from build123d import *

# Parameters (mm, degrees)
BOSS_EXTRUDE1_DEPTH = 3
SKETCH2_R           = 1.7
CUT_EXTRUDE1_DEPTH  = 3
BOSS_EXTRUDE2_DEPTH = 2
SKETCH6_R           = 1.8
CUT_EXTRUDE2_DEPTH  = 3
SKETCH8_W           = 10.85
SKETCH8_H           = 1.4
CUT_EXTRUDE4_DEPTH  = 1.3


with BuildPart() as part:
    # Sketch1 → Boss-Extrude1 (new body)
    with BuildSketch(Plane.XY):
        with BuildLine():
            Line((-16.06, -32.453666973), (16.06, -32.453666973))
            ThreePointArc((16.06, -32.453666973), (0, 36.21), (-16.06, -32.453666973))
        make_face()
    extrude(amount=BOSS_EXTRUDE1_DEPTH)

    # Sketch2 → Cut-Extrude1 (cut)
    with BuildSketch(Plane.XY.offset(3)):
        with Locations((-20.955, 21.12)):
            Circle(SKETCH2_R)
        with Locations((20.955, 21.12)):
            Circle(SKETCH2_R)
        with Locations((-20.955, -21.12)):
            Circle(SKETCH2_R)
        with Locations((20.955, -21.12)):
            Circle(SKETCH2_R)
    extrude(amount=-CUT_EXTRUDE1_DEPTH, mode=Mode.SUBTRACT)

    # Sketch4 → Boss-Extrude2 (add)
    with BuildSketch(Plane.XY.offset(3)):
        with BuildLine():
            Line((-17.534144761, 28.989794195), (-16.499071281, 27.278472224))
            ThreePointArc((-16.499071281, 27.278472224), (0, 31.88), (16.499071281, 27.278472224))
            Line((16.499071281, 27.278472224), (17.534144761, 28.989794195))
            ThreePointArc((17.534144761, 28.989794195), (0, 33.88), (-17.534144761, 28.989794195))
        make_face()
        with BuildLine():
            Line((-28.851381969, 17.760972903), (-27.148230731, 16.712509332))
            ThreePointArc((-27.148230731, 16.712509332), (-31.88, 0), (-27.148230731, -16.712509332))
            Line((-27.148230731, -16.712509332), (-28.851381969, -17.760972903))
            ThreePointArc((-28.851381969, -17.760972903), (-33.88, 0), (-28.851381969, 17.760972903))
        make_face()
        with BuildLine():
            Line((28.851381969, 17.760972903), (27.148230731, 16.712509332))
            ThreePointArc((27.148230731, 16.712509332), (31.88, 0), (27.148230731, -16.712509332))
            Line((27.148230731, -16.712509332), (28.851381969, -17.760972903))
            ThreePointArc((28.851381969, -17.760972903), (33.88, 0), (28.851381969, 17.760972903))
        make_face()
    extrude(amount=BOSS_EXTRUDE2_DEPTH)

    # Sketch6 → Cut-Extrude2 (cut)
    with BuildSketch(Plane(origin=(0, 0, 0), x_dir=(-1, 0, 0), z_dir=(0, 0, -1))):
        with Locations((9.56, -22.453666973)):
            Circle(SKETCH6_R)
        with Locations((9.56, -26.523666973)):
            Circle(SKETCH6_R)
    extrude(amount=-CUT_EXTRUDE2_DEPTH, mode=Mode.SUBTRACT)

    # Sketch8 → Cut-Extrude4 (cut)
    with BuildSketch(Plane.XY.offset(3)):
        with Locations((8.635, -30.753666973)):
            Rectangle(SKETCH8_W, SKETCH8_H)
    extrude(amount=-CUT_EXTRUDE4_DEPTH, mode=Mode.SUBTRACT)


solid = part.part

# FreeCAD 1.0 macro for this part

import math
import FreeCAD as App
import Part
import Sketcher
from FreeCAD import Vector

doc = App.newDocument("Part")
params = doc.addObject("Spreadsheet::Sheet", "Params")
for row, (alias, value) in enumerate([
    ("sketch1_radius", "36.21 mm"),
    ("sketch1_width", "32.12 mm"),
    ("pad1_length", "3 mm"),
    ("sketch2_diameter", "3.4 mm"),
    ("pocket1_length", "3 mm"),
    ("sketch3_radius", "31.88 mm"),
    ("sketch3_radius2", "33.88 mm"),
    ("pad2_length", "2 mm"),
    ("sketch4_diameter", "3.6 mm"),
    ("pocket2_length", "3 mm"),
    ("sketch5_height", "1.4 mm"),
    ("sketch5_width", "10.85 mm"),
    ("pocket3_length", "1.3 mm"),
], start=1):
    params.set(f"A{row}", alias)
    params.set(f"B{row}", "=" + value)
    params.setAlias(f"B{row}", alias)

body = doc.addObject("PartDesign::Body", "Body")

sketch1 = body.newObject("Sketcher::SketchObject", "Sketch")
sketch1.AttachmentSupport = (doc.getObject("XY_Plane"), [""])
sketch1.MapMode = "FlatFace"
sketch1.addGeometry([
    Part.LineSegment(Vector(-16, -32, 0), Vector(16, -32, 0)),
    Part.ArcOfCircle(Part.Circle(Vector(0, 0, 0), Vector(0, 0, 1), 36), math.radians(-64), math.radians(244)),
], False)
sketch1.addConstraint([
    Sketcher.Constraint("Coincident", 0, 1, 1, 2),
    Sketcher.Constraint("Coincident", 1, 1, 0, 2),
    Sketcher.Constraint("Horizontal", 0),
    Sketcher.Constraint("Coincident", 1, 3, -1, 1),
    Sketcher.Constraint("Radius", 1, 36.21),
    Sketcher.Constraint("DistanceX", 0, 1, 0, 2, 32.12),
])
sketch1.setExpression("Constraints[4]", "Params.sketch1_radius")
sketch1.setExpression("Constraints[5]", "Params.sketch1_width")
pad1 = body.newObject("PartDesign::Pad", "Pad")
pad1.Profile = sketch1
pad1.setExpression("Length", "Params.pad1_length")

sketch2 = body.newObject("Sketcher::SketchObject", "Sketch001")
sketch2.AttachmentSupport = (doc.getObject("XY_Plane"), [""])
sketch2.MapMode = "FlatFace"
sketch2.AttachmentOffset = App.Placement(Vector(0, 0, 3), App.Rotation())
sketch2.addGeometry([
    Part.Circle(Vector(-21, 21.1, 0), Vector(0, 0, 1), 1.7),
    Part.Circle(Vector(21, 21.1, 0), Vector(0, 0, 1), 1.7),
    Part.Circle(Vector(-21, -21.1, 0), Vector(0, 0, 1), 1.7),
    Part.Circle(Vector(21, -21.1, 0), Vector(0, 0, 1), 1.7),
], False)
sketch2.addConstraint([
    Sketcher.Constraint("Equal", 0, 1),
    Sketcher.Constraint("Equal", 1, 2),
    Sketcher.Constraint("Equal", 2, 3),
    Sketcher.Constraint("Symmetric", 1, 3, 2, 3, -1, 1),
    Sketcher.Constraint("Symmetric", 0, 3, 3, 3, -1, 1),
    Sketcher.Constraint("Symmetric", 0, 3, 1, 3, -2),
    Sketcher.Constraint("Diameter", 0, 3.4),
    Sketcher.Constraint("DistanceY", -1, 1, 0, 3, 21.12),
    Sketcher.Constraint("DistanceX", 0, 3, 1, 3, 41.91),
])
sketch2.setExpression("Constraints[6]", "Params.sketch2_diameter")
pocket1 = body.newObject("PartDesign::Pocket", "Pocket")
pocket1.Profile = sketch2
pocket1.setExpression("Length", "Params.pocket1_length")

sketch3 = body.newObject("Sketcher::SketchObject", "Sketch002")
sketch3.AttachmentSupport = (doc.getObject("XY_Plane"), [""])
sketch3.MapMode = "FlatFace"
sketch3.AttachmentOffset = App.Placement(Vector(0, 0, 3), App.Rotation())
sketch3.addGeometry([
    Part.LineSegment(Vector(-17.5, 29, 0), Vector(-16.5, 27.3, 0)),
    Part.ArcOfCircle(Part.Circle(Vector(0, 0, 0), Vector(0, 0, 1), 31.9), math.radians(59), math.radians(121)),
    Part.LineSegment(Vector(16.5, 27.3, 0), Vector(17.5, 29, 0)),
    Part.ArcOfCircle(Part.Circle(Vector(0, 0, 0), Vector(0, 0, 1), 33.9), math.radians(59), math.radians(121)),
    Part.LineSegment(Vector(-27.1, 16.7, 0), Vector(-28.9, 17.8, 0)),
    Part.ArcOfCircle(Part.Circle(Vector(0, 0, 0), Vector(0, 0, 1), 33.9), math.radians(148), math.radians(212)),
    Part.LineSegment(Vector(-28.9, -17.8, 0), Vector(-27.1, -16.7, 0)),
    Part.ArcOfCircle(Part.Circle(Vector(0, 0, 0), Vector(0, 0, 1), 31.9), math.radians(148), math.radians(212)),
    Part.LineSegment(Vector(28.9, 17.8, 0), Vector(27.1, 16.7, 0)),
    Part.ArcOfCircle(Part.Circle(Vector(0, 0, 0), Vector(0, 0, 1), 31.9), math.radians(-32), math.radians(32)),
    Part.LineSegment(Vector(27.1, -16.7, 0), Vector(28.9, -17.8, 0)),
    Part.ArcOfCircle(Part.Circle(Vector(0, 0, 0), Vector(0, 0, 1), 33.9), math.radians(-32), math.radians(32)),
], False)
sketch3.addConstraint([
    Sketcher.Constraint("Coincident", 0, 2, 1, 2),
    Sketcher.Constraint("Coincident", 1, 1, 2, 1),
    Sketcher.Constraint("Coincident", 2, 2, 3, 1),
    Sketcher.Constraint("Coincident", 3, 2, 0, 1),
    Sketcher.Constraint("Coincident", 4, 2, 5, 1),
    Sketcher.Constraint("Coincident", 5, 2, 6, 1),
    Sketcher.Constraint("Coincident", 6, 2, 7, 2),
    Sketcher.Constraint("Coincident", 7, 1, 4, 1),
    Sketcher.Constraint("Coincident", 8, 2, 9, 2),
    Sketcher.Constraint("Coincident", 9, 1, 10, 1),
    Sketcher.Constraint("Coincident", 10, 2, 11, 1),
    Sketcher.Constraint("Coincident", 11, 2, 8, 1),
    Sketcher.Constraint("Coincident", 1, 3, -1, 1),
    Sketcher.Constraint("Coincident", 3, 3, -1, 1),
    Sketcher.Constraint("Coincident", 5, 3, -1, 1),
    Sketcher.Constraint("Coincident", 7, 3, -1, 1),
    Sketcher.Constraint("Coincident", 9, 3, -1, 1),
    Sketcher.Constraint("Coincident", 11, 3, -1, 1),
    Sketcher.Constraint("Equal", 3, 5),
    Sketcher.Constraint("Equal", 1, 7),
    Sketcher.Constraint("Equal", 7, 9),
    Sketcher.Constraint("Equal", 5, 11),
    Sketcher.Constraint("Parallel", 6, 8),
    Sketcher.Constraint("Parallel", 4, 10),
    Sketcher.Constraint("Horizontal", 0, 2, 1, 1),
    Sketcher.Constraint("Horizontal", 2, 2, 3, 2),
    Sketcher.Constraint("Horizontal", 7, 1, 8, 2),
    Sketcher.Constraint("Horizontal", 6, 2, 9, 1),
    Sketcher.Constraint("Horizontal", 5, 2, 10, 2),
    Sketcher.Constraint("Vertical", 4, 2, 5, 2),
    Sketcher.Constraint("Radius", 1, 31.88),
    Sketcher.Constraint("Radius", 3, 33.88),
    Sketcher.Constraint("DistanceY", 4, 2, 0, 2, 9.517499),
    Sketcher.Constraint("DistanceX", 0, 2, -1, 1, 16.499071),
    Sketcher.Constraint("DistanceX", 6, 2, -1, 1, 27.148231),
    Sketcher.Constraint("DistanceY", 1, 1, 2, 2, 1.711322),
])
sketch3.setExpression("Constraints[30]", "Params.sketch3_radius")
sketch3.setExpression("Constraints[31]", "Params.sketch3_radius2")
pad2 = body.newObject("PartDesign::Pad", "Pad001")
pad2.Profile = sketch3
pad2.setExpression("Length", "Params.pad2_length")

sketch4 = body.newObject("Sketcher::SketchObject", "Sketch003")
sketch4.AttachmentSupport = (doc.getObject("XY_Plane"), [""])
sketch4.MapMode = "FlatFace"
sketch4.addGeometry([
    Part.Circle(Vector(-9.6, -22.5, 0), Vector(0, 0, 1), 1.8),
    Part.Circle(Vector(-9.6, -26.5, 0), Vector(0, 0, 1), 1.8),
], False)
sketch4.addConstraint([
    Sketcher.Constraint("Equal", 0, 1),
    Sketcher.Constraint("Vertical", 0, 3, 1, 3),
    Sketcher.Constraint("Diameter", 0, 3.6),
    Sketcher.Constraint("DistanceX", 0, 3, -1, 1, 9.56),
    Sketcher.Constraint("DistanceY", 1, 3, 0, 3, 4.07),
    Sketcher.Constraint("DistanceY", 0, 3, -1, 1, 22.453667),
])
sketch4.setExpression("Constraints[2]", "Params.sketch4_diameter")
pocket2 = body.newObject("PartDesign::Pocket", "Pocket001")
pocket2.Profile = sketch4
pocket2.setExpression("Length", "Params.pocket2_length")
pocket2.Reversed = True

sketch5 = body.newObject("Sketcher::SketchObject", "Sketch004")
sketch5.AttachmentSupport = (doc.getObject("XY_Plane"), [""])
sketch5.MapMode = "FlatFace"
sketch5.AttachmentOffset = App.Placement(Vector(0, 0, 3), App.Rotation())
sketch5.addGeometry([
    Part.LineSegment(Vector(3.2, -30.1, 0), Vector(3.2, -31.5, 0)),
    Part.LineSegment(Vector(3.2, -31.5, 0), Vector(14.1, -31.5, 0)),
    Part.LineSegment(Vector(14.1, -31.5, 0), Vector(14.1, -30.1, 0)),
    Part.LineSegment(Vector(14.1, -30.1, 0), Vector(3.2, -30.1, 0)),
], False)
sketch5.addConstraint([
    Sketcher.Constraint("Coincident", 0, 2, 1, 1),
    Sketcher.Constraint("Coincident", 1, 2, 2, 1),
    Sketcher.Constraint("Coincident", 2, 2, 3, 1),
    Sketcher.Constraint("Coincident", 3, 2, 0, 1),
    Sketcher.Constraint("Vertical", 0),
    Sketcher.Constraint("Horizontal", 1),
    Sketcher.Constraint("Vertical", 2),
    Sketcher.Constraint("Horizontal", 3),
    Sketcher.Constraint("DistanceY", 0, 2, 0, 1, 1.4),
    Sketcher.Constraint("DistanceX", 1, 1, 1, 2, 10.85),
    Sketcher.Constraint("DistanceX", -1, 1, 0, 2, 3.21),
    Sketcher.Constraint("DistanceY", 0, 2, -1, 1, 31.453667),
])
sketch5.setExpression("Constraints[8]", "Params.sketch5_height")
sketch5.setExpression("Constraints[9]", "Params.sketch5_width")
pocket3 = body.newObject("PartDesign::Pocket", "Pocket002")
pocket3.Profile = sketch5
pocket3.setExpression("Length", "Params.pocket3_length")

doc.recompute()
